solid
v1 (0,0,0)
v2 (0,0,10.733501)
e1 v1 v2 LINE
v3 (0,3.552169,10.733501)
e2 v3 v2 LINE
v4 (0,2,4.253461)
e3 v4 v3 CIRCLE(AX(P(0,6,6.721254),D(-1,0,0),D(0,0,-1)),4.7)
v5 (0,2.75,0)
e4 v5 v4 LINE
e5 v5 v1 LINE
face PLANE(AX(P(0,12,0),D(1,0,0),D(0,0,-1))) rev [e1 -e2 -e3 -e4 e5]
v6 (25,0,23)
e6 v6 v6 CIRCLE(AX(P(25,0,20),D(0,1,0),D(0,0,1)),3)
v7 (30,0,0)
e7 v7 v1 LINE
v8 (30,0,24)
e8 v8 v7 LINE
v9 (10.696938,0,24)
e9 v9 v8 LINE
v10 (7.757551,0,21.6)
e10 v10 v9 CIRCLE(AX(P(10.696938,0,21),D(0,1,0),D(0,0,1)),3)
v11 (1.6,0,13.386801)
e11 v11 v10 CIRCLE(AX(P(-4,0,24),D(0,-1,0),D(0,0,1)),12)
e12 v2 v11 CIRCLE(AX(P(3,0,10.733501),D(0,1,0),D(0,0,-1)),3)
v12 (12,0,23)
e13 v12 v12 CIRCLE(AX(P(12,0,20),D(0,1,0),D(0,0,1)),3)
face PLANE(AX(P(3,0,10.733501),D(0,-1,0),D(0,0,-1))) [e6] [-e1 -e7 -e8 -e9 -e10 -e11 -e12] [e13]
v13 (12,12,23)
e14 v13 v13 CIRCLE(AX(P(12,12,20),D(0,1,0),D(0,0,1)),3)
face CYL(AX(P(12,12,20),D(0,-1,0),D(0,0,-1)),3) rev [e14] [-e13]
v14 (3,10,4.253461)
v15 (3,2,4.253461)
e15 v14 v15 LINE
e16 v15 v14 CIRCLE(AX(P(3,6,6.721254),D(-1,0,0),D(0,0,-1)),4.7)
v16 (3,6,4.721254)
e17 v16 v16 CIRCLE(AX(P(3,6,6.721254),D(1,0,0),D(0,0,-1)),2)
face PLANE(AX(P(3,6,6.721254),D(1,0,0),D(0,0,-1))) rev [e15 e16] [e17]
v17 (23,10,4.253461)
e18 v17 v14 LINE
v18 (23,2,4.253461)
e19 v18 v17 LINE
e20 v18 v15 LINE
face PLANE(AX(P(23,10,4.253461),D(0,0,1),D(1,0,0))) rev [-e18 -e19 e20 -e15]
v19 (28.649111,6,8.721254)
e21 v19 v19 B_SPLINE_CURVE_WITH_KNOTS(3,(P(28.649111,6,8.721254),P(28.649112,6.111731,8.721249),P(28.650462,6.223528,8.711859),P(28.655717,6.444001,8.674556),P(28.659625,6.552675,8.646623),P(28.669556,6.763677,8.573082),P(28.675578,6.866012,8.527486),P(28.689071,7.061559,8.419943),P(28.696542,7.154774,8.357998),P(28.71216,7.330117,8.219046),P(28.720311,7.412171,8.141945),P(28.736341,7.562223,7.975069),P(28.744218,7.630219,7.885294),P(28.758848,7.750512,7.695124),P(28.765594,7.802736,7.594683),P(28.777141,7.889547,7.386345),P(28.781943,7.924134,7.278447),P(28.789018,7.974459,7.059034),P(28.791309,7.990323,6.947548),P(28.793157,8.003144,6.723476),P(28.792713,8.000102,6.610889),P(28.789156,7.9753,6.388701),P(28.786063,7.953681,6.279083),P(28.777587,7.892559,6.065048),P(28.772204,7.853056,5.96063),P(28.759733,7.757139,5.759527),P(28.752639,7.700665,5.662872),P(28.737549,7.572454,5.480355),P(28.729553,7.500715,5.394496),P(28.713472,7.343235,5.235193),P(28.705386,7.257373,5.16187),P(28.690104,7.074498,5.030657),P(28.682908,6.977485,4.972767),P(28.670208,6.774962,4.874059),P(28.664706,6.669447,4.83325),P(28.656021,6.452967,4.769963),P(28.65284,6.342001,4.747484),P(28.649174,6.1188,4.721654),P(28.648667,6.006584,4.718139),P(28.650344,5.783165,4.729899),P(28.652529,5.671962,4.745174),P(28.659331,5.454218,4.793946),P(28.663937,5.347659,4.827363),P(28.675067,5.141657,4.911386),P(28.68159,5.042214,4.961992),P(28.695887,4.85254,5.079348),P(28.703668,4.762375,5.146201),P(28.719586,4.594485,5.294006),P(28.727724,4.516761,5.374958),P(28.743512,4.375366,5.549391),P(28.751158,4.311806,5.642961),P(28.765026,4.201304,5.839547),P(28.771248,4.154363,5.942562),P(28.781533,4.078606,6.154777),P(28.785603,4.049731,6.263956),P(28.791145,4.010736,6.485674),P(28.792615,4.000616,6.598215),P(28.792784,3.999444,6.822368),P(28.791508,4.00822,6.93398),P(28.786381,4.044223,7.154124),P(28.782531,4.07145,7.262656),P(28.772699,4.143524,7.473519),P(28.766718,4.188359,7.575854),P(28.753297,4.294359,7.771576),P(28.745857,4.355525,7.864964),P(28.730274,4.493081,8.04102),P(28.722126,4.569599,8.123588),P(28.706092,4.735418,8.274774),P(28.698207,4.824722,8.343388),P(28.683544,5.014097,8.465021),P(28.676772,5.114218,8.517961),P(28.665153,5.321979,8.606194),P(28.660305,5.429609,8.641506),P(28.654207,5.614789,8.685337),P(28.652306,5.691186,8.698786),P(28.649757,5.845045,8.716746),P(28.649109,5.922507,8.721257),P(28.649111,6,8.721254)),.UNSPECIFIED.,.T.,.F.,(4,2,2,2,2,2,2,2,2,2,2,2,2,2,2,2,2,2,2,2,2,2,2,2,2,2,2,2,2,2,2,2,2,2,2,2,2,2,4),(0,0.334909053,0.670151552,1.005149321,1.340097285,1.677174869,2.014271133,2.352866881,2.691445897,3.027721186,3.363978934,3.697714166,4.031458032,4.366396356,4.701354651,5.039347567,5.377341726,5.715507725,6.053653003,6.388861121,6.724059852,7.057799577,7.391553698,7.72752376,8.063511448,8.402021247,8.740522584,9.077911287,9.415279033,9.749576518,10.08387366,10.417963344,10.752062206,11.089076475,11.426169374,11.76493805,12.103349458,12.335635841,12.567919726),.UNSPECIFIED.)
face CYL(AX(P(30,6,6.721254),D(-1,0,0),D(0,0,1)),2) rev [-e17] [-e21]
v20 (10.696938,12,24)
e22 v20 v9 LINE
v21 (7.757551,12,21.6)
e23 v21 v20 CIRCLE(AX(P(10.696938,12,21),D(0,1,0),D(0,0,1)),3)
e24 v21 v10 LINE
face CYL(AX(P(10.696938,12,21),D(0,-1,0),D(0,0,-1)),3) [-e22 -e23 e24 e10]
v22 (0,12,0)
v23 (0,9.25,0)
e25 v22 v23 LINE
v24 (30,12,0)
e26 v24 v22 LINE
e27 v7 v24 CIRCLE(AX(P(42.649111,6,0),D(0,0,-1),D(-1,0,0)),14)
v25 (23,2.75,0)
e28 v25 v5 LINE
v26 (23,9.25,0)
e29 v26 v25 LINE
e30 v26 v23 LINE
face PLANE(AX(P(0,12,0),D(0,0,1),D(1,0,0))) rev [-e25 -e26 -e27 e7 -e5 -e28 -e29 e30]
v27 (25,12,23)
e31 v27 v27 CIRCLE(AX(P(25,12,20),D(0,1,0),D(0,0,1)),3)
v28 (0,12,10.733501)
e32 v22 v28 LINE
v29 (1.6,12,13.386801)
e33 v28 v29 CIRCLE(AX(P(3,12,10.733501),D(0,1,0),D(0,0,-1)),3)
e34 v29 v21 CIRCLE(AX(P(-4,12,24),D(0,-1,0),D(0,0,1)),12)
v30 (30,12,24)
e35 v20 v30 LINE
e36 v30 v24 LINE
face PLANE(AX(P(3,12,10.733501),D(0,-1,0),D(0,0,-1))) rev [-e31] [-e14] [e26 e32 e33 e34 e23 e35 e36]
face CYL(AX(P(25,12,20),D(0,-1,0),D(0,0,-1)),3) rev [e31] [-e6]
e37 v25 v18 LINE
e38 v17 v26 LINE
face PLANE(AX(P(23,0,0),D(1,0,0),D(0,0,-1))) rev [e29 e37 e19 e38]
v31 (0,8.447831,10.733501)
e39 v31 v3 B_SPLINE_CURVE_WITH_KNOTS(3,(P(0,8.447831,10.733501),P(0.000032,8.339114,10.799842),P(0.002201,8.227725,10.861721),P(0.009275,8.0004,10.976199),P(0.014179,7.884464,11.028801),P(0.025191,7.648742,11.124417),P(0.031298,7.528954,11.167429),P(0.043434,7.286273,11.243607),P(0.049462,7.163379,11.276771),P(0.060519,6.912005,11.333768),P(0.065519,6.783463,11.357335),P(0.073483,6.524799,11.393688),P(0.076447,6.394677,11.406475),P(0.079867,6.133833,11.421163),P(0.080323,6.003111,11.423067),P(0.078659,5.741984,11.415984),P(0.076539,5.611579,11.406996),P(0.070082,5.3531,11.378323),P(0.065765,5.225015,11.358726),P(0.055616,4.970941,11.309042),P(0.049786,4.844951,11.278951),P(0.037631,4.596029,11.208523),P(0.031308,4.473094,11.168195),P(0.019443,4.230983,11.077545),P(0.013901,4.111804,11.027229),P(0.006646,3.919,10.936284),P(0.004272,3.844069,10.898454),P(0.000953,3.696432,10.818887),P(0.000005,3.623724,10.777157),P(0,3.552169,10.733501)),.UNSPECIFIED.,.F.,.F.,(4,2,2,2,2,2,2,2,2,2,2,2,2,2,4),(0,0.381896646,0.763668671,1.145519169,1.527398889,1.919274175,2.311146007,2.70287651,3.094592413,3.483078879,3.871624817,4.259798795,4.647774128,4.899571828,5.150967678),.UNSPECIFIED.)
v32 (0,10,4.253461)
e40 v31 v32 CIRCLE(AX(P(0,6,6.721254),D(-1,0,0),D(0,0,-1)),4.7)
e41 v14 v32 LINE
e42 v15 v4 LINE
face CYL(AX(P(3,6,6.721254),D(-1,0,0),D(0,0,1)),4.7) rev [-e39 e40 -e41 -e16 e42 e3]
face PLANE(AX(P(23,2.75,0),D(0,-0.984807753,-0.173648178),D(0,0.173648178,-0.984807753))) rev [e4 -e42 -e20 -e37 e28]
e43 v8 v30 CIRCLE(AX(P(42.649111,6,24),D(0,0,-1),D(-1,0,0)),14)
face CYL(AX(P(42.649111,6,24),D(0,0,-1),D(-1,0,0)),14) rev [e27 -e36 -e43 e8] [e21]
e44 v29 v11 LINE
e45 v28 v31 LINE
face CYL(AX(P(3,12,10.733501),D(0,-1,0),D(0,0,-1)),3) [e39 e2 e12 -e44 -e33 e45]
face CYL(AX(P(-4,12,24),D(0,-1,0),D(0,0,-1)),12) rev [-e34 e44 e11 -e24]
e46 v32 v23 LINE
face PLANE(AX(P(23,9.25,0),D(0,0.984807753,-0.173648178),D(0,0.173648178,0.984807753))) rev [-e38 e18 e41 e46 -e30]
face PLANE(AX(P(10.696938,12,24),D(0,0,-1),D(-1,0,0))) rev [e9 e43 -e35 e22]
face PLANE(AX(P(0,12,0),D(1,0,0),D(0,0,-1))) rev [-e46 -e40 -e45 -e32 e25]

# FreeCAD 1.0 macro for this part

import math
import FreeCAD as App
import Part
import Sketcher
Q = App.Units.Quantity


def add_polygon(sketch, points):
    """Adds a closed chain of lines whose ends are joined by coincident constraints."""
    first, n = sketch.GeometryCount, len(points)
    for a, b in zip(points, points[1:] + points[:1]):
        sketch.addGeometry(Part.LineSegment(App.Vector(*a, 0), App.Vector(*b, 0)), False)
    for i in range(n):
        sketch.addConstraint(Sketcher.Constraint("Coincident", first + i, 2, first + (i + 1) % n, 1))

doc = App.newDocument("Part")
body = doc.addObject("PartDesign::Body", "Body")

# Sketch on XZ plane
sketch1 = body.newObject("Sketcher::SketchObject", "Sketch")
sketch1.AttachmentSupport = (doc.getObject("XZ_Plane"), [""])
sketch1.MapMode = "FlatFace"
sketch1.addGeometry(Part.LineSegment(App.Vector(30, 0, 0), App.Vector(0, 0, 0)), False)
sketch1.addGeometry(Part.LineSegment(App.Vector(0, 0, 0), App.Vector(0, 10.7, 0)), False)
sketch1.addGeometry(Part.ArcOfCircle(Part.Circle(App.Vector(3, 10.7, 0), App.Vector(0, 0, 1), 3), math.radians(118), math.radians(180)), False)
sketch1.addGeometry(Part.ArcOfCircle(Part.Circle(App.Vector(-4, 24, 0), App.Vector(0, 0, 1), 12), math.radians(-62), math.radians(-12)), False)
sketch1.addGeometry(Part.ArcOfCircle(Part.Circle(App.Vector(10.7, 21, 0), App.Vector(0, 0, 1), 3), math.radians(90), math.radians(168)), False)
sketch1.addGeometry(Part.LineSegment(App.Vector(10.7, 24, 0), App.Vector(30, 24, 0)), False)
sketch1.addGeometry(Part.LineSegment(App.Vector(30, 24, 0), App.Vector(30, 0, 0)), False)
sketch1.addGeometry(Part.Circle(App.Vector(25, 20, 0), App.Vector(0, 0, 1), 3), False)
sketch1.addGeometry(Part.Circle(App.Vector(12, 20, 0), App.Vector(0, 0, 1), 3), False)
sketch1.addConstraint(Sketcher.Constraint("Coincident", 0, 2, 1, 1))
sketch1.addConstraint(Sketcher.Constraint("Tangent", 1, 2, 2, 2))
sketch1.addConstraint(Sketcher.Constraint("Tangent", 2, 1, 3, 1))
sketch1.addConstraint(Sketcher.Constraint("Tangent", 3, 2, 4, 2))
sketch1.addConstraint(Sketcher.Constraint("Tangent", 4, 1, 5, 1))
sketch1.addConstraint(Sketcher.Constraint("Coincident", 5, 2, 6, 1))
sketch1.addConstraint(Sketcher.Constraint("Coincident", 6, 2, 0, 1))
sketch1.addConstraint(Sketcher.Constraint("Horizontal", 0))
sketch1.addConstraint(Sketcher.Constraint("Vertical", 1))
sketch1.addConstraint(Sketcher.Constraint("Horizontal", 5))
sketch1.addConstraint(Sketcher.Constraint("Vertical", 6))
sketch1.addConstraint(Sketcher.Constraint("Coincident", 0, 2, -1, 1))
sketch1.addConstraint(Sketcher.Constraint("Equal", 2, 4))
sketch1.addConstraint(Sketcher.Constraint("Equal", 4, 7))
sketch1.addConstraint(Sketcher.Constraint("Equal", 7, 8))
sketch1.addConstraint(Sketcher.Constraint("Horizontal", 7, 3, 8, 3))
sketch1.addConstraint(Sketcher.Constraint("Horizontal", 3, 3, 4, 1))
sketch1.addConstraint(Sketcher.Constraint("Diameter", 7, 6.0))
sketch1.addConstraint(Sketcher.Constraint("Radius", 3, 12.0))
sketch1.addConstraint(Sketcher.Constraint("DistanceX", 0, 2, 0, 1, 30.0))
sketch1.addConstraint(Sketcher.Constraint("DistanceY", 6, 2, 6, 1, 24.0))
sketch1.addConstraint(Sketcher.Constraint("DistanceX", 3, 3, -1, 1, 4.0))
sketch1.addConstraint(Sketcher.Constraint("DistanceX", -1, 1, 7, 3, 25.0))
sketch1.addConstraint(Sketcher.Constraint("DistanceY", -1, 1, 7, 3, 20.0))
sketch1.addConstraint(Sketcher.Constraint("DistanceX", -1, 1, 8, 3, 12.0))
pad1 = body.newObject("PartDesign::Pad", "Pad")
pad1.Profile = sketch1
pad1.Length = 12
pad1.Reversed = True

# Sketch on XY plane
sketch2 = body.newObject("Sketcher::SketchObject", "Sketch001")
sketch2.AttachmentSupport = (doc.getObject("XY_Plane"), [""])
sketch2.MapMode = "FlatFace"
sketch2.addGeometry(Part.LineSegment(App.Vector(30, 12, 0), App.Vector(30, 0, 0)), False)
sketch2.addGeometry(Part.ArcOfCircle(Part.Circle(App.Vector(43, 6, 0), App.Vector(0, 0, 1), 14), math.radians(155), math.radians(205)), False)
sketch2.addConstraint(Sketcher.Constraint("Coincident", 0, 1, 1, 1))
sketch2.addConstraint(Sketcher.Constraint("Coincident", 1, 2, 0, 2))
sketch2.addConstraint(Sketcher.Constraint("Vertical", 0))
sketch2.addConstraint(Sketcher.Constraint("PointOnObject", 1, 2, -1))
sketch2.addConstraint(Sketcher.Constraint("Radius", 1, 14.0))
sketch2.addConstraint(Sketcher.Constraint("DistanceY", 0, 2, 0, 1, 12.0))
sketch2.addConstraint(Sketcher.Constraint("DistanceX", -1, 1, 0, 1, 30.0))
pocket1 = body.newObject("PartDesign::Pocket", "Pocket")
pocket1.Profile = sketch2
pocket1.Type = "ThroughAll"
pocket1.Reversed = True

# Sketch on YZ plane
sketch3 = body.newObject("Sketcher::SketchObject", "Sketch002")
sketch3.AttachmentSupport = (doc.getObject("YZ_Plane"), [""])
sketch3.MapMode = "FlatFace"
add_polygon(sketch3, [(9.2, 0), (2.8, 0), (2, 4.3), (10, 4.3)])  # lines 0-3
sketch3.addConstraint(Sketcher.Constraint("Horizontal", 0))
sketch3.addConstraint(Sketcher.Constraint("Horizontal", 2))
sketch3.addConstraint(Sketcher.Constraint("PointOnObject", 0, 2, -1))
sketch3.addConstraint(Sketcher.Constraint("Equal", 1, 3))
sketch3.addConstraint(Sketcher.Constraint("DistanceX", 2, 1, 2, 2, 8.0))
sketch3.addConstraint(Sketcher.Constraint("Angle", 1, Q("100 deg")))
sketch3.addConstraint(Sketcher.Constraint("DistanceX", 0, 2, 0, 1, 6.5))
sketch3.addConstraint(Sketcher.Constraint("DistanceX", -1, 1, 1, 2, 2.0))
pocket2 = body.newObject("PartDesign::Pocket", "Pocket001")
pocket2.Profile = sketch3
pocket2.Length = 23
pocket2.Reversed = True

# Sketch on YZ plane
sketch4 = body.newObject("Sketcher::SketchObject", "Sketch003")
sketch4.AttachmentSupport = (doc.getObject("YZ_Plane"), [""])
sketch4.MapMode = "FlatFace"
sketch4.addGeometry(Part.LineSegment(App.Vector(10, 4.3, 0), App.Vector(2, 4.3, 0)), False)
sketch4.addGeometry(Part.ArcOfCircle(Part.Circle(App.Vector(6, 6.7, 0), App.Vector(0, 0, 1), 4.7), math.radians(-32), math.radians(212)), False)
sketch4.addGeometry(Part.Circle(App.Vector(6, 6.7, 0), App.Vector(0, 0, 1), 2), False)
sketch4.addConstraint(Sketcher.Constraint("Coincident", 0, 1, 1, 1))
sketch4.addConstraint(Sketcher.Constraint("Coincident", 1, 2, 0, 2))
sketch4.addConstraint(Sketcher.Constraint("Horizontal", 0))
sketch4.addConstraint(Sketcher.Constraint("Coincident", 2, 3, 1, 3))
sketch4.addConstraint(Sketcher.Constraint("Diameter", 2, 4.0))
sketch4.addConstraint(Sketcher.Constraint("Radius", 1, 4.7))
sketch4.addConstraint(Sketcher.Constraint("DistanceX", 0, 2, 0, 1, 8.0))
sketch4.addConstraint(Sketcher.Constraint("DistanceX", -1, 1, 1, 3, 6.0))
sketch4.addConstraint(Sketcher.Constraint("DistanceY", -1, 1, 0, 1, 4.253461))
pocket3 = body.newObject("PartDesign::Pocket", "Pocket002")
pocket3.Profile = sketch4
pocket3.Length = 3
pocket3.Reversed = True

# Sketch on YZ plane
sketch5 = body.newObject("Sketcher::SketchObject", "Sketch004")
sketch5.AttachmentSupport = (doc.getObject("YZ_Plane"), [""])
sketch5.MapMode = "FlatFace"
sketch5.addGeometry(Part.Circle(App.Vector(6, 6.7, 0), App.Vector(0, 0, 1), 2), False)
sketch5.addConstraint(Sketcher.Constraint("Diameter", 0, 4.0))
sketch5.addConstraint(Sketcher.Constraint("DistanceX", -1, 1, 0, 3, 6.0))
sketch5.addConstraint(Sketcher.Constraint("DistanceY", -1, 1, 0, 3, 6.721254))
pocket4 = body.newObject("PartDesign::Pocket", "Pocket003")
pocket4.Profile = sketch5
pocket4.Type = "ThroughAll"
pocket4.Reversed = True

doc.recompute()
